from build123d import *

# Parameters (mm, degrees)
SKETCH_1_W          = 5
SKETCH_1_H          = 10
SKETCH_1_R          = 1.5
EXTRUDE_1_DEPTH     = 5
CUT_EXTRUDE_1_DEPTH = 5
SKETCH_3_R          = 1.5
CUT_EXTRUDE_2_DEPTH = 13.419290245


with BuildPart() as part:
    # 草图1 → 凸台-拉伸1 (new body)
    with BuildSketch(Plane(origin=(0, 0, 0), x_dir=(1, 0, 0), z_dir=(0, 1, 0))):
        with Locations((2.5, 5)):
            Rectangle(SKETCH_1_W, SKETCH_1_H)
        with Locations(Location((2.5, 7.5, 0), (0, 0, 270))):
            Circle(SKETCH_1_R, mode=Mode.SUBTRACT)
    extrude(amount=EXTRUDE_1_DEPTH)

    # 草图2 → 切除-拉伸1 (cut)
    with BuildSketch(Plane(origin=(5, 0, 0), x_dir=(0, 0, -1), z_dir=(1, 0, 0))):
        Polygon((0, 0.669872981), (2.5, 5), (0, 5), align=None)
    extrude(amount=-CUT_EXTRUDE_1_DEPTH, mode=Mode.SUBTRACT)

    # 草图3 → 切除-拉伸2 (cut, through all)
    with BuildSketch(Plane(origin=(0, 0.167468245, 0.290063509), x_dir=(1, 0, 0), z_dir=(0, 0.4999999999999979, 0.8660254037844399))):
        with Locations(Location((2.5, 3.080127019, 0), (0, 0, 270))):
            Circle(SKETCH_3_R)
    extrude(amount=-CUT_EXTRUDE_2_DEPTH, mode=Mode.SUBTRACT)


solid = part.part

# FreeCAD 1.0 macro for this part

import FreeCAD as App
import Part
import Sketcher
Q = App.Units.Quantity


def add_polygon(sketch, points):
    """Adds a closed chain of lines whose ends are joined by coincident constraints."""
    first, n = sketch.GeometryCount, len(points)
    for a, b in zip(points, points[1:] + points[:1]):
        sketch.addGeometry(Part.LineSegment(App.Vector(*a, 0), App.Vector(*b, 0)), False)
    for i in range(n):
        sketch.addConstraint(Sketcher.Constraint("Coincident", first + i, 2, first + (i + 1) % n, 1))

doc = App.newDocument("Part")
body = doc.addObject("PartDesign::Body", "Body")

# Sketch on XZ plane
sketch1 = doc.addObject("Sketcher::SketchObject", "Sketch")
body.addObject(sketch1)
sketch1.AttachmentSupport = (doc.XZ_Plane, [""])
sketch1.MapMode = "FlatFace"
add_polygon(sketch1, [(0, -10), (0, 0), (5, 0), (5, -10)])  # lines 0-3
sketch1.addGeometry(Part.Circle(App.Vector(2.5, -7.5, 0), App.Vector(0, 0, 1), 1.5), False)  # 4
sketch1.addConstraint(Sketcher.Constraint("Vertical", 0))
sketch1.addConstraint(Sketcher.Constraint("Horizontal", 1))
sketch1.addConstraint(Sketcher.Constraint("Vertical", 2))
sketch1.addConstraint(Sketcher.Constraint("Horizontal", 3))
sketch1.addConstraint(Sketcher.Constraint("Coincident", 0, 2, -1, 1))
sketch1.addConstraint(Sketcher.Constraint("Diameter", 4, 3.0))
sketch1.addConstraint(Sketcher.Constraint("DistanceX", 1, 1, 1, 2, 5.0))
sketch1.addConstraint(Sketcher.Constraint("DistanceY", 0, 1, 0, 2, 10.0))
sketch1.addConstraint(Sketcher.Constraint("DistanceX", -1, 1, 4, 3, 2.5))
sketch1.addConstraint(Sketcher.Constraint("DistanceY", 4, 3, -1, 1, 7.5))
pad1 = doc.addObject("PartDesign::Pad", "Pad")
body.addObject(pad1)
pad1.Profile = sketch1
pad1.Length = 5
pad1.Reversed = True

# Sketch on YZ plane
sketch2 = doc.addObject("Sketcher::SketchObject", "Sketch001")
body.addObject(sketch2)
sketch2.AttachmentSupport = (doc.YZ_Plane, [""])
sketch2.MapMode = "FlatFace"
sketch2.AttachmentOffset = App.Placement(App.Vector(0, 0, 5), App.Rotation())
add_polygon(sketch2, [(0.7, 0), (5, -2.5), (5, 0)])  # lines 0-2
sketch2.addConstraint(Sketcher.Constraint("Vertical", 1))
sketch2.addConstraint(Sketcher.Constraint("Horizontal", 2))
sketch2.addConstraint(Sketcher.Constraint("PointOnObject", 1, 2, -1))
sketch2.addConstraint(Sketcher.Constraint("Angle", 0, Q("-30 deg")))
sketch2.addConstraint(Sketcher.Constraint("Distance", 0, 5.0))
sketch2.addConstraint(Sketcher.Constraint("DistanceX", -1, 1, 0, 2, 5.0))
pocket1 = doc.addObject("PartDesign::Pocket", "Pocket")
body.addObject(pocket1)
pocket1.Profile = sketch2
pocket1.Length = 5

# Sketch on an angled plane
sketch3 = doc.addObject("Sketcher::SketchObject", "Sketch002")
body.addObject(sketch3)
sketch3.Placement = App.Placement(App.Vector(0, 0.167468, 0.290064), App.Rotation(App.Vector(1, 0, 0), App.Vector(0, 0.866025404, -0.5), App.Vector(0, 0.5, 0.866025404), "ZXY"))
sketch3.addGeometry(Part.Circle(App.Vector(2.5, 3.1, 0), App.Vector(0, 0, 1), 1.5), False)
sketch3.addConstraint(Sketcher.Constraint("Diameter", 0, 3.0))
sketch3.addConstraint(Sketcher.Constraint("DistanceX", -1, 1, 0, 3, 2.5))
sketch3.addConstraint(Sketcher.Constraint("DistanceY", -1, 1, 0, 3, 3.080127))
pocket2 = doc.addObject("PartDesign::Pocket", "Pocket001")
body.addObject(pocket2)
pocket2.Profile = sketch3
pocket2.Type = "ThroughAll"

doc.recompute()
